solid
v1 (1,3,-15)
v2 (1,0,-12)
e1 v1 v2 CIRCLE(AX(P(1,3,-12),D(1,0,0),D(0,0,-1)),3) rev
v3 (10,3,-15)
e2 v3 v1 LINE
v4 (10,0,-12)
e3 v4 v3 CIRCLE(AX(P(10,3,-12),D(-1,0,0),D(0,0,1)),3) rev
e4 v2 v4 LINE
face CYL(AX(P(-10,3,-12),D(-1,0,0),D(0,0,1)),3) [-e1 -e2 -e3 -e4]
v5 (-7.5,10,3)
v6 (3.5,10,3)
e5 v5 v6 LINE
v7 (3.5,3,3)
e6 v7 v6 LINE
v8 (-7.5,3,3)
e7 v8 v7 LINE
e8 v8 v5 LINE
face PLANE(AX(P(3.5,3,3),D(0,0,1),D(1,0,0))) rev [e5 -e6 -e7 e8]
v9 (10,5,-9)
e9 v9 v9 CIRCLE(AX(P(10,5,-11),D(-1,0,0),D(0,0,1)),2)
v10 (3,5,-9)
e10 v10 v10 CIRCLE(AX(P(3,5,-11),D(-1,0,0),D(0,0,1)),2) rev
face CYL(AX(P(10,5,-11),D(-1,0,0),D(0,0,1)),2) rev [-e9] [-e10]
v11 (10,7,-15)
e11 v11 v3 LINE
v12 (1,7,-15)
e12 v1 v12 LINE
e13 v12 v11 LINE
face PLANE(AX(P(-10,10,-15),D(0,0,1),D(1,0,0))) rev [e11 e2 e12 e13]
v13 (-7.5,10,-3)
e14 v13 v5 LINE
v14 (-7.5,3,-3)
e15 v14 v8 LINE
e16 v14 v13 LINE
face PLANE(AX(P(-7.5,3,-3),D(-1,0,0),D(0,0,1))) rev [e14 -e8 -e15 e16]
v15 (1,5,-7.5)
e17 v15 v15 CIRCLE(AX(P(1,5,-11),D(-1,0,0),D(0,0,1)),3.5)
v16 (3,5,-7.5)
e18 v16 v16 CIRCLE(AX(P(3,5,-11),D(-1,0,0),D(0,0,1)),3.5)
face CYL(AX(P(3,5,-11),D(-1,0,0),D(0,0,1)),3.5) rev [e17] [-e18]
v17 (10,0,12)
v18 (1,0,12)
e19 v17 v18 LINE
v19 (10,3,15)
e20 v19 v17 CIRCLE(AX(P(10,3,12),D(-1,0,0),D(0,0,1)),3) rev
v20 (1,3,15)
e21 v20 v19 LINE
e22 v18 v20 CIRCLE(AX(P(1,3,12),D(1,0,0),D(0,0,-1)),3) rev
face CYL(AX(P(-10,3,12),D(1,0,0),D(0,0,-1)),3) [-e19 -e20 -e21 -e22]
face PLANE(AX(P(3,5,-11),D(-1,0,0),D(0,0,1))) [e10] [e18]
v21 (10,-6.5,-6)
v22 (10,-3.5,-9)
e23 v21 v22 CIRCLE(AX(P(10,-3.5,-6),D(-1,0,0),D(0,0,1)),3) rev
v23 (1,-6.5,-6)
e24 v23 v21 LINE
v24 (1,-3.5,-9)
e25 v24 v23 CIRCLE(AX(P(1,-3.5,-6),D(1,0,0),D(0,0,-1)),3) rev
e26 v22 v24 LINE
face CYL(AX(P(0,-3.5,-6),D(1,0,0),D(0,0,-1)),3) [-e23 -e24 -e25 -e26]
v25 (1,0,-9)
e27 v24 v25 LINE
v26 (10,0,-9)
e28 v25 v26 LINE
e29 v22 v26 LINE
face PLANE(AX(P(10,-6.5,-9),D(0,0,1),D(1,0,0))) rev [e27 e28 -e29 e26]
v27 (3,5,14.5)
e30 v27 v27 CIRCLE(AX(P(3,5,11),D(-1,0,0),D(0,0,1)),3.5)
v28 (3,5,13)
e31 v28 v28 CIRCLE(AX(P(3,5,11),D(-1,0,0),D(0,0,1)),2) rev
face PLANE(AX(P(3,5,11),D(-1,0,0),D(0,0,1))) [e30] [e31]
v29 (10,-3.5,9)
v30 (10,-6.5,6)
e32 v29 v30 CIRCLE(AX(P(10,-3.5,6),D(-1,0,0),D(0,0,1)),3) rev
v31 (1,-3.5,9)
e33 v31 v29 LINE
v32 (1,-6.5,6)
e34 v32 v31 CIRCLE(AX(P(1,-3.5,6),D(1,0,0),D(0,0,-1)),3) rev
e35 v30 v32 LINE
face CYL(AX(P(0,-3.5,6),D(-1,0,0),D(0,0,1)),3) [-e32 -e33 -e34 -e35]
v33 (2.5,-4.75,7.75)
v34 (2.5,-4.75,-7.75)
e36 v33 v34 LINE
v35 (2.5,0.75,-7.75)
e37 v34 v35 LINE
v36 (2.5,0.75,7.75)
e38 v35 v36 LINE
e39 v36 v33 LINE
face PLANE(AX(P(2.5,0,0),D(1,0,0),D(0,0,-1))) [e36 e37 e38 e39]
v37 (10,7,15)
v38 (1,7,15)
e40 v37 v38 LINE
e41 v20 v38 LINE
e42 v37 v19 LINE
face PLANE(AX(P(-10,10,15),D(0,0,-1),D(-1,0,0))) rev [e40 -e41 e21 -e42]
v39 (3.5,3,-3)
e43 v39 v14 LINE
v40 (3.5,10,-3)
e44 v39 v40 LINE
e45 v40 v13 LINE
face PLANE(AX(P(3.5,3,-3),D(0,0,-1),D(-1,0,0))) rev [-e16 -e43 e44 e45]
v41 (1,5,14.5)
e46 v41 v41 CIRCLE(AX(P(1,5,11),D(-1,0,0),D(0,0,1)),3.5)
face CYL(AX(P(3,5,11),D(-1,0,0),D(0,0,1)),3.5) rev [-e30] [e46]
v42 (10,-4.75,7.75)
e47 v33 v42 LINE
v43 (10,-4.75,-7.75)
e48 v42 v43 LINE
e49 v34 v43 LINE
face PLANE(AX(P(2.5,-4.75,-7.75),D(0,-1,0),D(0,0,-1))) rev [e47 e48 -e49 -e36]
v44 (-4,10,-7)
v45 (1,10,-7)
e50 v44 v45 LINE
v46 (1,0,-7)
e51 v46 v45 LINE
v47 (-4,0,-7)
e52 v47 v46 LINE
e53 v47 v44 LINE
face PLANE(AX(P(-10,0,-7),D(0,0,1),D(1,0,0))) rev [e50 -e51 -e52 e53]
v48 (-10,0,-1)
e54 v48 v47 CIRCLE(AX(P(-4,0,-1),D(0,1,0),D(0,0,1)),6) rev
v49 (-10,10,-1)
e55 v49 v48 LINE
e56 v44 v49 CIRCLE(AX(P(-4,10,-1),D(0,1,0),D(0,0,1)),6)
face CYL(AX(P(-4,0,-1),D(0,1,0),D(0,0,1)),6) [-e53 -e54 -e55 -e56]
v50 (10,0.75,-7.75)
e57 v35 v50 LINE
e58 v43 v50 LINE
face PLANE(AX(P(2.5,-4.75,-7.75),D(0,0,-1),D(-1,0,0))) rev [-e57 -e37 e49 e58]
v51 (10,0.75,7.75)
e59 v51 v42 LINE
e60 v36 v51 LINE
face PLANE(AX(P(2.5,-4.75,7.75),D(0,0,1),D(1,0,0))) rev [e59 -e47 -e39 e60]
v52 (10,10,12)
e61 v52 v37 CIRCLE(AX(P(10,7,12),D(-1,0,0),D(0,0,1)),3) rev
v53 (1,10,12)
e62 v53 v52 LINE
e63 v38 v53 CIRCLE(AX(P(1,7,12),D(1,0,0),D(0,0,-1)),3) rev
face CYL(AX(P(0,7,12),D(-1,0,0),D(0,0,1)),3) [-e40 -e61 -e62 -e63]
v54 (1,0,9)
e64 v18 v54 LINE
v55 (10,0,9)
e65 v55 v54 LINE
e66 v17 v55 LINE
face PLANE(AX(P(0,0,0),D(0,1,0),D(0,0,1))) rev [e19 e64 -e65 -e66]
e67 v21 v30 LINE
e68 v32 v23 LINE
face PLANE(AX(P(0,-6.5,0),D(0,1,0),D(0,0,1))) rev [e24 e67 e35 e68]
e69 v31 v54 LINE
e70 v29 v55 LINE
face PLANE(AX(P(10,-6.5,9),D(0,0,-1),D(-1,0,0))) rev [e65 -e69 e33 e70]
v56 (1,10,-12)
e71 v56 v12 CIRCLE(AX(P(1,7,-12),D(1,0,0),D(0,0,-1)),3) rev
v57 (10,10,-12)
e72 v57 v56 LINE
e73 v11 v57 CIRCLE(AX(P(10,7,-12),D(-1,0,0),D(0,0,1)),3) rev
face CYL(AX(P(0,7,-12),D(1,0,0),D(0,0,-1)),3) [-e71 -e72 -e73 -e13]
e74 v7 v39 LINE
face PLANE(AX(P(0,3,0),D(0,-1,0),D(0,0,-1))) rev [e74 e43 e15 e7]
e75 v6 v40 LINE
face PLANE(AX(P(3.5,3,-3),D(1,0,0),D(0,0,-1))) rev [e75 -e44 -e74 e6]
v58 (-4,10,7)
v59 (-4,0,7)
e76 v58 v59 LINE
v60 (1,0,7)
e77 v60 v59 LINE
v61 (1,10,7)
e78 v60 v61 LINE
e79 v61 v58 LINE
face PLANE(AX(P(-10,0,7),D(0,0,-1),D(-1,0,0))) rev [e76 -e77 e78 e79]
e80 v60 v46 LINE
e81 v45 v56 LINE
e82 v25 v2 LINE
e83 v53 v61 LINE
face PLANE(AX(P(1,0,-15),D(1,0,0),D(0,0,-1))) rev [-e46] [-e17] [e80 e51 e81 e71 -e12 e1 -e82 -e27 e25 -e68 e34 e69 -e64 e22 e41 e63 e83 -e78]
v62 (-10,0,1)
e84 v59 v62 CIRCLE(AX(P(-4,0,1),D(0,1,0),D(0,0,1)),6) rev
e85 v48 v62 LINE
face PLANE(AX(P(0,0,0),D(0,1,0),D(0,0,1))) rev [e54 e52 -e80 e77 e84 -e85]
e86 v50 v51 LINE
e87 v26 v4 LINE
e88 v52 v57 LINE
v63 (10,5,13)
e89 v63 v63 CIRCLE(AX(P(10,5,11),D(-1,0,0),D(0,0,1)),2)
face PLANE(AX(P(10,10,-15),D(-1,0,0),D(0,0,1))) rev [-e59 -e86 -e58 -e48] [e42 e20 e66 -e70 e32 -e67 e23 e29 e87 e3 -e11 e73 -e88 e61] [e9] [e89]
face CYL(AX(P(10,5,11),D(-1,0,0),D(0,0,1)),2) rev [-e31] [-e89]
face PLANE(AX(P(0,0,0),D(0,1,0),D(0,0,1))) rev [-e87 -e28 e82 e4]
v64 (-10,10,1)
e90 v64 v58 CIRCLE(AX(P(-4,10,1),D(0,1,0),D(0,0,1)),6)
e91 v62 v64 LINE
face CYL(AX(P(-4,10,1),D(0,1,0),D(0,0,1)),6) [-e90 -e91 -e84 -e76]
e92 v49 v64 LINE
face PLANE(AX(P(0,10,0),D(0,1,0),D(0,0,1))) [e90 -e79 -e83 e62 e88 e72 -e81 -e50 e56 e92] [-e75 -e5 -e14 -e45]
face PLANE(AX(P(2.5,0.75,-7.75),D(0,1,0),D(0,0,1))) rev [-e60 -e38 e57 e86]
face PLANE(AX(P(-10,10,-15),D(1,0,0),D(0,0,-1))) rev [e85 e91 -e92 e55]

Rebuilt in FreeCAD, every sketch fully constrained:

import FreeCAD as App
import Part
import Sketcher
Q = App.Units.Quantity


def edges_at(feature, points):
    """Names of the edges that pass closest to the given points."""
    edges = feature.Shape.Edges
    near = lambda p: min(range(len(edges)), key=lambda i: edges[i].distToShape(Part.Vertex(*p))[0])
    return sorted({f"Edge{near(p) + 1}" for p in points})


def add_polygon(sketch, points):
    """Adds a closed chain of lines whose ends are joined by coincident constraints."""
    first, n = sketch.GeometryCount, len(points)
    for a, b in zip(points, points[1:] + points[:1]):
        sketch.addGeometry(Part.LineSegment(App.Vector(*a, 0), App.Vector(*b, 0)), False)
    for i in range(n):
        sketch.addConstraint(Sketcher.Constraint("Coincident", first + i, 2, first + (i + 1) % n, 1))

doc = App.newDocument("Part")
params = doc.addObject("Spreadsheet::Sheet", "Params")
for row, (alias, value) in enumerate([
    ("sketch1_width", "20 mm"),
    ("sketch1_height", "30 mm"),
    ("pad1_length", "10 mm"),
    ("sketch2_width", "11 mm"),
    ("sketch2_height", "8 mm"),
    ("pocket1_length", "10 mm"),
    ("sketch3_width", "11 mm"),
    ("sketch3_height", "6 mm"),
    ("pocket2_length", "7 mm"),
    ("sketch4_width", "9 mm"),
    ("sketch4_height", "18 mm"),
    ("pad2_length", "6.5 mm"),
    ("sketch5_width", "5.5 mm"),
    ("sketch5_height", "15.5 mm"),
    ("pocket3_length", "7.5 mm"),
    ("sketch6_diameter", "4 mm"),
    ("sketch7_diameter", "7 mm"),
    ("pocket5_length", "2 mm"),
    ("fillet_radius", "6 mm"),
    ("fillet2_radius", "3 mm"),
], start=1):
    params.set(f"A{row}", alias)
    params.set(f"B{row}", "=" + value)
    params.setAlias(f"B{row}", alias)

body = doc.addObject("PartDesign::Body", "Body")

# Sketch on XZ plane
sketch1 = body.newObject("Sketcher::SketchObject", "Sketch")
sketch1.AttachmentSupport = (doc.getObject("XZ_Plane"), [""])
sketch1.MapMode = "FlatFace"
add_polygon(sketch1, [(-10, -15), (-10, 15), (10, 15), (10, -15)])  # lines 0-3
sketch1.addConstraint(Sketcher.Constraint("Vertical", 0))
sketch1.addConstraint(Sketcher.Constraint("Horizontal", 1))
sketch1.addConstraint(Sketcher.Constraint("Vertical", 2))
sketch1.addConstraint(Sketcher.Constraint("Horizontal", 3))
sketch1.addConstraint(Sketcher.Constraint("Symmetric", 0, 2, 2, 2, -1, 1))
sketch1.addConstraint(Sketcher.Constraint("DistanceX", 1, 1, 1, 2, Q("20 mm")))
sketch1.addConstraint(Sketcher.Constraint("DistanceY", 0, 1, 0, 2, Q("30 mm")))
sketch1.setExpression("Constraints[9]", "Params.sketch1_width")
sketch1.setExpression("Constraints[10]", "Params.sketch1_height")
pad1 = body.newObject("PartDesign::Pad", "Pad")
pad1.Profile = sketch1
pad1.setExpression("Length", "Params.pad1_length")
pad1.Reversed = True

# Sketch on XZ plane
sketch2 = body.newObject("Sketcher::SketchObject", "Sketch001")
sketch2.AttachmentSupport = (doc.getObject("XZ_Plane"), [""])
sketch2.MapMode = "FlatFace"
sketch2.AttachmentOffset = App.Placement(App.Vector(0, 0, -10), App.Rotation())
add_polygon(sketch2, [(-10, -15), (-10, -7), (1, -7), (1, -15)])  # lines 0-3
add_polygon(sketch2, [(-10, 7), (-10, 15), (1, 15), (1, 7)])  # lines 4-7
sketch2.addConstraint(Sketcher.Constraint("Vertical", 0))
sketch2.addConstraint(Sketcher.Constraint("Horizontal", 1))
sketch2.addConstraint(Sketcher.Constraint("Vertical", 2))
sketch2.addConstraint(Sketcher.Constraint("Horizontal", 3))
sketch2.addConstraint(Sketcher.Constraint("Vertical", 4))
sketch2.addConstraint(Sketcher.Constraint("Horizontal", 5))
sketch2.addConstraint(Sketcher.Constraint("Vertical", 6))
sketch2.addConstraint(Sketcher.Constraint("Horizontal", 7))
sketch2.addConstraint(Sketcher.Constraint("Symmetric", 3, 2, 4, 2, -1))
sketch2.addConstraint(Sketcher.Constraint("Symmetric", 1, 2, 6, 2, -1))
sketch2.addConstraint(Sketcher.Constraint("DistanceX", 1, 1, 1, 2, Q("11 mm")))
sketch2.addConstraint(Sketcher.Constraint("DistanceY", 0, 1, 0, 2, Q("8 mm")))
sketch2.addConstraint(Sketcher.Constraint("DistanceX", 0, 2, -1, 1, Q("10 mm")))
sketch2.addConstraint(Sketcher.Constraint("DistanceY", 0, 2, -1, 1, Q("7 mm")))
sketch2.setExpression("Constraints[18]", "Params.sketch2_width")
sketch2.setExpression("Constraints[19]", "Params.sketch2_height")
pocket1 = body.newObject("PartDesign::Pocket", "Pocket")
pocket1.Profile = sketch2
pocket1.setExpression("Length", "Params.pocket1_length")
pocket1.Reversed = True

# Sketch on XZ plane
sketch3 = body.newObject("Sketcher::SketchObject", "Sketch002")
sketch3.AttachmentSupport = (doc.getObject("XZ_Plane"), [""])
sketch3.MapMode = "FlatFace"
sketch3.AttachmentOffset = App.Placement(App.Vector(0, 0, -10), App.Rotation())
add_polygon(sketch3, [(-7.5, -3), (-7.5, 3), (3.5, 3), (3.5, -3)])  # lines 0-3
sketch3.addConstraint(Sketcher.Constraint("Vertical", 0))
sketch3.addConstraint(Sketcher.Constraint("Horizontal", 1))
sketch3.addConstraint(Sketcher.Constraint("Vertical", 2))
sketch3.addConstraint(Sketcher.Constraint("Horizontal", 3))
sketch3.addConstraint(Sketcher.Constraint("DistanceX", 1, 1, 1, 2, Q("11 mm")))
sketch3.addConstraint(Sketcher.Constraint("DistanceY", 0, 1, 0, 2, Q("6 mm")))
sketch3.addConstraint(Sketcher.Constraint("DistanceY", -1, 1, 0, 2, Q("3 mm")))
sketch3.addConstraint(Sketcher.Constraint("DistanceX", 0, 2, -1, 1, Q("7.5 mm")))
sketch3.setExpression("Constraints[8]", "Params.sketch3_width")
sketch3.setExpression("Constraints[9]", "Params.sketch3_height")
pocket2 = body.newObject("PartDesign::Pocket", "Pocket001")
pocket2.Profile = sketch3
pocket2.setExpression("Length", "Params.pocket2_length")
pocket2.Reversed = True

# Sketch on XZ plane
sketch4 = body.newObject("Sketcher::SketchObject", "Sketch003")
sketch4.AttachmentSupport = (doc.getObject("XZ_Plane"), [""])
sketch4.MapMode = "FlatFace"
add_polygon(sketch4, [(1, 9), (1, -9), (10, -9), (10, 9)])  # lines 0-3
sketch4.addConstraint(Sketcher.Constraint("Vertical", 0))
sketch4.addConstraint(Sketcher.Constraint("Horizontal", 1))
sketch4.addConstraint(Sketcher.Constraint("Vertical", 2))
sketch4.addConstraint(Sketcher.Constraint("Horizontal", 3))
sketch4.addConstraint(Sketcher.Constraint("DistanceX", 1, 1, 1, 2, Q("9 mm")))
sketch4.addConstraint(Sketcher.Constraint("DistanceY", 0, 2, 0, 1, Q("18 mm")))
sketch4.addConstraint(Sketcher.Constraint("DistanceX", -1, 1, 0, 2, Q("1 mm")))
sketch4.addConstraint(Sketcher.Constraint("DistanceY", 0, 2, -1, 1, Q("9 mm")))
sketch4.setExpression("Constraints[8]", "Params.sketch4_width")
sketch4.setExpression("Constraints[9]", "Params.sketch4_height")
pad2 = body.newObject("PartDesign::Pad", "Pad001")
pad2.Profile = sketch4
pad2.setExpression("Length", "Params.pad2_length")

# Sketch on YZ plane
sketch5 = body.newObject("Sketcher::SketchObject", "Sketch004")
sketch5.AttachmentSupport = (doc.getObject("YZ_Plane"), [""])
sketch5.MapMode = "FlatFace"
sketch5.AttachmentOffset = App.Placement(App.Vector(0, 0, 10), App.Rotation())
add_polygon(sketch5, [(0.75, 7.75), (-4.75, 7.75), (-4.75, -7.75), (0.75, -7.75)])  # lines 0-3
sketch5.addConstraint(Sketcher.Constraint("Horizontal", 0))
sketch5.addConstraint(Sketcher.Constraint("Vertical", 1))
sketch5.addConstraint(Sketcher.Constraint("Horizontal", 2))
sketch5.addConstraint(Sketcher.Constraint("Vertical", 3))
sketch5.addConstraint(Sketcher.Constraint("DistanceX", 0, 2, 0, 1, Q("5.5 mm")))
sketch5.addConstraint(Sketcher.Constraint("DistanceY", 1, 2, 1, 1, Q("15.5 mm")))
sketch5.addConstraint(Sketcher.Constraint("DistanceX", 0, 2, -1, 1, Q("4.75 mm")))
sketch5.addConstraint(Sketcher.Constraint("DistanceY", -1, 1, 0, 2, Q("7.75 mm")))
sketch5.setExpression("Constraints[8]", "Params.sketch5_width")
sketch5.setExpression("Constraints[9]", "Params.sketch5_height")
pocket3 = body.newObject("PartDesign::Pocket", "Pocket002")
pocket3.Profile = sketch5
pocket3.setExpression("Length", "Params.pocket3_length")

# Sketch on YZ plane
sketch6 = body.newObject("Sketcher::SketchObject", "Sketch005")
sketch6.AttachmentSupport = (doc.getObject("YZ_Plane"), [""])
sketch6.MapMode = "FlatFace"
sketch6.AttachmentOffset = App.Placement(App.Vector(0, 0, 1), App.Rotation())
sketch6.addGeometry(Part.Circle(App.Vector(5, 11, 0), App.Vector(0, 0, 1), 2), False)
sketch6.addGeometry(Part.Circle(App.Vector(5, -11, 0), App.Vector(0, 0, 1), 2), False)
sketch6.addConstraint(Sketcher.Constraint("Equal", 0, 1))
sketch6.addConstraint(Sketcher.Constraint("Symmetric", 0, 3, 1, 3, -1))
sketch6.addConstraint(Sketcher.Constraint("Diameter", 0, Q("4 mm")))
sketch6.addConstraint(Sketcher.Constraint("DistanceX", -1, 1, 0, 3, Q("5 mm")))
sketch6.addConstraint(Sketcher.Constraint("DistanceY", -1, 1, 0, 3, Q("11 mm")))
sketch6.setExpression("Constraints[2]", "Params.sketch6_diameter")
pocket4 = body.newObject("PartDesign::Pocket", "Pocket003")
pocket4.Profile = sketch6
pocket4.Type = "ThroughAll"
pocket4.Reversed = True

# Sketch on YZ plane
sketch7 = body.newObject("Sketcher::SketchObject", "Sketch006")
sketch7.AttachmentSupport = (doc.getObject("YZ_Plane"), [""])
sketch7.MapMode = "FlatFace"
sketch7.AttachmentOffset = App.Placement(App.Vector(0, 0, 1), App.Rotation())
sketch7.addGeometry(Part.Circle(App.Vector(5, 11, 0), App.Vector(0, 0, 1), 3.5), False)
sketch7.addGeometry(Part.Circle(App.Vector(5, -11, 0), App.Vector(0, 0, 1), 3.5), False)
sketch7.addConstraint(Sketcher.Constraint("Equal", 0, 1))
sketch7.addConstraint(Sketcher.Constraint("Symmetric", 0, 3, 1, 3, -1))
sketch7.addConstraint(Sketcher.Constraint("Diameter", 0, Q("7 mm")))
sketch7.addConstraint(Sketcher.Constraint("DistanceX", -1, 1, 0, 3, Q("5 mm")))
sketch7.addConstraint(Sketcher.Constraint("DistanceY", -1, 1, 0, 3, Q("11 mm")))
sketch7.setExpression("Constraints[2]", "Params.sketch7_diameter")
pocket5 = body.newObject("PartDesign::Pocket", "Pocket004")
pocket5.Profile = sketch7
pocket5.setExpression("Length", "Params.pocket5_length")
pocket5.Reversed = True
doc.recompute()

fillet = body.newObject("PartDesign::Fillet", "Fillet")
fillet.Base = (pocket5, edges_at(pocket5, [(-10, 5, -7), (-10, 5, 7)]))
fillet.setExpression("Radius", "Params.fillet_radius")
doc.recompute()

fillet2 = body.newObject("PartDesign::Fillet", "Fillet001")
fillet2.Base = (fillet, edges_at(fillet, [
    (5.5, 0, 15),
    (5.5, 10, 15),
    (5.5, 0, -15),
    (5.5, -6.5, -9),
    (5.5, -6.5, 9),
    (5.5, 10, -15),
]))
fillet2.setExpression("Radius", "Params.fillet2_radius")

doc.recompute()
